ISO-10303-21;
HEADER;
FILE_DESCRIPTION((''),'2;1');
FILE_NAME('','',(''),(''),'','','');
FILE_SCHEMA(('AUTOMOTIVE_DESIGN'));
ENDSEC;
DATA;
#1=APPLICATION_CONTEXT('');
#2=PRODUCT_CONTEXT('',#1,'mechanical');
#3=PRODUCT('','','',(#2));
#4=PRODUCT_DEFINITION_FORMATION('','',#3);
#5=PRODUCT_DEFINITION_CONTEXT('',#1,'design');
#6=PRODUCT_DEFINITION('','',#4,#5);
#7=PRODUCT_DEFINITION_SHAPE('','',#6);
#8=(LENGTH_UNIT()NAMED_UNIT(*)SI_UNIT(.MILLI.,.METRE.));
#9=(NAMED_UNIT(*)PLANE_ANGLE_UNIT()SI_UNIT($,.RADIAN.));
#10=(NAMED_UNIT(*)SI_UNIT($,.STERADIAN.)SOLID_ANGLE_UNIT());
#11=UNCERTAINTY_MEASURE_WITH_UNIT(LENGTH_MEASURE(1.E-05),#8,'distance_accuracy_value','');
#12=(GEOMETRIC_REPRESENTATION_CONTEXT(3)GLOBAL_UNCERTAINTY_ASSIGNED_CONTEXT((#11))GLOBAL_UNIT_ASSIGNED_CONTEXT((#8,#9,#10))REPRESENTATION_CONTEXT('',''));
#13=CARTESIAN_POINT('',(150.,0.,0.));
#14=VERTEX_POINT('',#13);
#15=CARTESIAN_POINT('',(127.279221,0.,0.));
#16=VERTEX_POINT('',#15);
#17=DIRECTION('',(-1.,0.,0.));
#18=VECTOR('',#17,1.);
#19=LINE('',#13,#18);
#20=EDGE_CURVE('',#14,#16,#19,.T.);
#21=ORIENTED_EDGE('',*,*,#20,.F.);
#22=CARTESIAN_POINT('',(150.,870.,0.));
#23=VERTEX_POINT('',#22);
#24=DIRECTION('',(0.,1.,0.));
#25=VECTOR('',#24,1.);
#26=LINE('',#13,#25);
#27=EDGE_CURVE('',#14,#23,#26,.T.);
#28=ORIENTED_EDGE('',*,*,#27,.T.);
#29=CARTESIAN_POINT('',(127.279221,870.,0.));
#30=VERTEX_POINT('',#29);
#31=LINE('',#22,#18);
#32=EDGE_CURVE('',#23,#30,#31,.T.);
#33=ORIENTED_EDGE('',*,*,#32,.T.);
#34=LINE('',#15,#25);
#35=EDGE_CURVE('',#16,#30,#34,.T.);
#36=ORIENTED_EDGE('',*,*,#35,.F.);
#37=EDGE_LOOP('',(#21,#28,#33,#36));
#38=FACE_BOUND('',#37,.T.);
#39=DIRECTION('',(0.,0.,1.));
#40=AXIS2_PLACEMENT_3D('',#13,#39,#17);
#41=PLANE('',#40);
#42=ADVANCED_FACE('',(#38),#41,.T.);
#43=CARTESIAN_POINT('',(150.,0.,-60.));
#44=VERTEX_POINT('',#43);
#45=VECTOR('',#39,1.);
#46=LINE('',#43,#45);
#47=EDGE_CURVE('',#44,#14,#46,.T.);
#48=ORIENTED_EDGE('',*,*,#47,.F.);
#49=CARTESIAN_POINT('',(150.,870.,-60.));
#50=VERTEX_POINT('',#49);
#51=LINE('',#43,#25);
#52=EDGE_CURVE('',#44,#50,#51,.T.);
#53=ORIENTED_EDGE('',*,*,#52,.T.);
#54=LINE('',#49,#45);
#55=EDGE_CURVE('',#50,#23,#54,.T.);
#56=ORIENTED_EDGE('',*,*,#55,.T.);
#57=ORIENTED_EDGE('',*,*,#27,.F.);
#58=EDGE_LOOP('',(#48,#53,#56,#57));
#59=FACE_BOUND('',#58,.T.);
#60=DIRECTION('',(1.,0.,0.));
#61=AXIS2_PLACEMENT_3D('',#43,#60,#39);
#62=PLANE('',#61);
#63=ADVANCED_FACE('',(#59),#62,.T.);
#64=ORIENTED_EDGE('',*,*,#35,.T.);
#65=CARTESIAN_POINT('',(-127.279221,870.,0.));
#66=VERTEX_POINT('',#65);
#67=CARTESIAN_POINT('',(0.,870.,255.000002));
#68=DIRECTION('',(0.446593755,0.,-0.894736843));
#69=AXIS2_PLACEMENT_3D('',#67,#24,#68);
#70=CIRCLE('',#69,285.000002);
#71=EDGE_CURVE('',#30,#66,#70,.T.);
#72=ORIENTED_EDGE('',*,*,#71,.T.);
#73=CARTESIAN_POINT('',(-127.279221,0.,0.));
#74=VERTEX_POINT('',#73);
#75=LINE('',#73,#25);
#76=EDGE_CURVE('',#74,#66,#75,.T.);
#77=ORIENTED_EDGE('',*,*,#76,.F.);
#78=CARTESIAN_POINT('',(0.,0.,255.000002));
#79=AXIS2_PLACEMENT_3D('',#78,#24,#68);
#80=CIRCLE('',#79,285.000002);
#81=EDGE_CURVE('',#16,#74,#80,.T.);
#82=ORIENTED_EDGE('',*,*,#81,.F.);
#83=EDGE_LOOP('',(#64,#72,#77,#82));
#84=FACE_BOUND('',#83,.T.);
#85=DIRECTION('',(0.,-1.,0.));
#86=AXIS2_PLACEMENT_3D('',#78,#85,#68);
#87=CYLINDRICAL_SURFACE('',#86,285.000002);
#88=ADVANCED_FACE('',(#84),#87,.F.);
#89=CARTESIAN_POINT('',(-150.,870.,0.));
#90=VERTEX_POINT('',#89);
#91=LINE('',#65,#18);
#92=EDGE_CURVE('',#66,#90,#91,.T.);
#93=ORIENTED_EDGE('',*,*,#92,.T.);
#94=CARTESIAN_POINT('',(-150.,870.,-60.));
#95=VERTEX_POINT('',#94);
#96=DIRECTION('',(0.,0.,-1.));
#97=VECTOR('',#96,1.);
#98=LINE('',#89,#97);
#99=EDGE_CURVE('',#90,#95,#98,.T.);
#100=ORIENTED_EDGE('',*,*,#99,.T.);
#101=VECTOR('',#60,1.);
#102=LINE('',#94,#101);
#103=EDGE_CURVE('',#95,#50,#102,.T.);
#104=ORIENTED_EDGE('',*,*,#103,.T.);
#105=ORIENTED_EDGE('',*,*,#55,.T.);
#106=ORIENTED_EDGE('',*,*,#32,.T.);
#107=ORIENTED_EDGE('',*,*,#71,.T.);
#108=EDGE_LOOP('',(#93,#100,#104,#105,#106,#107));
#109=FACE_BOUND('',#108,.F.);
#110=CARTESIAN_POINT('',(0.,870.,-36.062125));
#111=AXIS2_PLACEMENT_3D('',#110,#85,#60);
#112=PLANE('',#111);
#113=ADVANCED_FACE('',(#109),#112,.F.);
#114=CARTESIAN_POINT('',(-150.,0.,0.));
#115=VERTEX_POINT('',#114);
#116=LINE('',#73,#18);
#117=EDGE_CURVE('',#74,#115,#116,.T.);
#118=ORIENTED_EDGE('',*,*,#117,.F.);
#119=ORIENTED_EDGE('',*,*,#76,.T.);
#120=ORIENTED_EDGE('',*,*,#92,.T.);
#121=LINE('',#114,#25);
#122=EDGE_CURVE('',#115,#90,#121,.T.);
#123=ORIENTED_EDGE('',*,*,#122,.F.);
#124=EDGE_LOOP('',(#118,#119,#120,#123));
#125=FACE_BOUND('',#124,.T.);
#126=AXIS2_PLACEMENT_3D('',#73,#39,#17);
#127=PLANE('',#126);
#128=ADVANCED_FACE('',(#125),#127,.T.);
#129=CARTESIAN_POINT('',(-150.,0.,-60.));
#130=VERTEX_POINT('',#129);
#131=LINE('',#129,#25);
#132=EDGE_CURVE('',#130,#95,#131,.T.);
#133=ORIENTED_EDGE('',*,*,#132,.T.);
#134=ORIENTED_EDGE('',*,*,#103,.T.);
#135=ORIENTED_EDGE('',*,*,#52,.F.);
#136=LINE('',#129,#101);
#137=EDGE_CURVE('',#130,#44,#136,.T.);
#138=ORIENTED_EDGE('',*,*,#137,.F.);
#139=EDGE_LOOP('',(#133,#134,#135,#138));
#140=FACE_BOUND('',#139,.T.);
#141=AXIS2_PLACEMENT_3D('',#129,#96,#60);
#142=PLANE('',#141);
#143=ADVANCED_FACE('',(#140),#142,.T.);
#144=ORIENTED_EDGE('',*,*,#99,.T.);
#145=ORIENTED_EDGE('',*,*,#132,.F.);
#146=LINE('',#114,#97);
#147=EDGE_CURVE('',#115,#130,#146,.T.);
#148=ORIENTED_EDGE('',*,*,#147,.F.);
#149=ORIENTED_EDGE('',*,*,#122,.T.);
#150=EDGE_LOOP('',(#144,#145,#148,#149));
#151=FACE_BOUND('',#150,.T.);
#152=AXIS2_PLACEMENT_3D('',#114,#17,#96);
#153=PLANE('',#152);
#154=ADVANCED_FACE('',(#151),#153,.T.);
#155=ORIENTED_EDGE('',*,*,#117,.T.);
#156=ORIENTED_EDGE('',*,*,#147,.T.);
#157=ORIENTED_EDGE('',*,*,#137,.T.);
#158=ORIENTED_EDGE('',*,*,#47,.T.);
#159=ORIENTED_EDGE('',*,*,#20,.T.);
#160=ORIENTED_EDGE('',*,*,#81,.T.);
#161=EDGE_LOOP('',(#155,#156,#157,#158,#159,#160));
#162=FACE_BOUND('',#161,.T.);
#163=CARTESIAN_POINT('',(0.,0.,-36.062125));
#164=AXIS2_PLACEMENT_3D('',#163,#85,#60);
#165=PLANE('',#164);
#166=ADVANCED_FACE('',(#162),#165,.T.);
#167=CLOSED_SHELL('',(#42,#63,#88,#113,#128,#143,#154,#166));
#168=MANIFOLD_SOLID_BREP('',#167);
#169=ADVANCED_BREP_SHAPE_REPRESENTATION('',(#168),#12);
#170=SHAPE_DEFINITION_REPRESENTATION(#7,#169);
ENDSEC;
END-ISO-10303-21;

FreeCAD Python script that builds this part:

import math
import FreeCAD as App
import Part
import Sketcher
from FreeCAD import Vector
Q = App.Units.Quantity

doc = App.newDocument("Part")
body = doc.addObject("PartDesign::Body", "Body")

sketch1 = doc.addObject("Sketcher::SketchObject", "Sketch")
body.addObject(sketch1)
sketch1.AttachmentSupport = (doc.XZ_Plane, [""])
sketch1.MapMode = "FlatFace"
sketch1.addGeometry(Part.ArcOfCircle(Part.Circle(Vector(0, 255, 0), Vector(0, 0, 1), 285), math.radians(-117), math.radians(-63)), False)
sketch1.addGeometry(Part.LineSegment(Vector(-127, 0, 0), Vector(-150, 0, 0)), False)
sketch1.addGeometry(Part.LineSegment(Vector(-150, 0, 0), Vector(-150, -60, 0)), False)
sketch1.addGeometry(Part.LineSegment(Vector(-150, -60, 0), Vector(150, -60, 0)), False)
sketch1.addGeometry(Part.LineSegment(Vector(150, -60, 0), Vector(150, 0, 0)), False)
sketch1.addGeometry(Part.LineSegment(Vector(150, 0, 0), Vector(127, 0, 0)), False)
sketch1.addConstraint(Sketcher.Constraint("Coincident", 0, 1, 1, 1))
sketch1.addConstraint(Sketcher.Constraint("Coincident", 1, 2, 2, 1))
sketch1.addConstraint(Sketcher.Constraint("Coincident", 2, 2, 3, 1))
sketch1.addConstraint(Sketcher.Constraint("Coincident", 3, 2, 4, 1))
sketch1.addConstraint(Sketcher.Constraint("Coincident", 4, 2, 5, 1))
sketch1.addConstraint(Sketcher.Constraint("Coincident", 5, 2, 0, 2))
sketch1.addConstraint(Sketcher.Constraint("Horizontal", 1))
sketch1.addConstraint(Sketcher.Constraint("Vertical", 2))
sketch1.addConstraint(Sketcher.Constraint("Horizontal", 3))
sketch1.addConstraint(Sketcher.Constraint("Vertical", 4))
sketch1.addConstraint(Sketcher.Constraint("Horizontal", 5))
sketch1.addConstraint(Sketcher.Constraint("Symmetric", 1, 2, 4, 2, -1, 1))
sketch1.addConstraint(Sketcher.Constraint("Symmetric", 0, 1, 5, 2, -2))
sketch1.addConstraint(Sketcher.Constraint("Radius", 0, Q("285.000002 mm")))
sketch1.addConstraint(Sketcher.Constraint("DistanceX", 3, 1, 3, 2, Q("300 mm")))
sketch1.addConstraint(Sketcher.Constraint("DistanceY", 2, 2, 2, 1, Q("60 mm")))
sketch1.addConstraint(Sketcher.Constraint("DistanceY", -1, 1, 0, 3, Q("255.000002 mm")))
pad1 = doc.addObject("PartDesign::Pad", "Pad")
body.addObject(pad1)
pad1.Profile = sketch1
pad1.Length = 870
pad1.Reversed = True

doc.recompute()
